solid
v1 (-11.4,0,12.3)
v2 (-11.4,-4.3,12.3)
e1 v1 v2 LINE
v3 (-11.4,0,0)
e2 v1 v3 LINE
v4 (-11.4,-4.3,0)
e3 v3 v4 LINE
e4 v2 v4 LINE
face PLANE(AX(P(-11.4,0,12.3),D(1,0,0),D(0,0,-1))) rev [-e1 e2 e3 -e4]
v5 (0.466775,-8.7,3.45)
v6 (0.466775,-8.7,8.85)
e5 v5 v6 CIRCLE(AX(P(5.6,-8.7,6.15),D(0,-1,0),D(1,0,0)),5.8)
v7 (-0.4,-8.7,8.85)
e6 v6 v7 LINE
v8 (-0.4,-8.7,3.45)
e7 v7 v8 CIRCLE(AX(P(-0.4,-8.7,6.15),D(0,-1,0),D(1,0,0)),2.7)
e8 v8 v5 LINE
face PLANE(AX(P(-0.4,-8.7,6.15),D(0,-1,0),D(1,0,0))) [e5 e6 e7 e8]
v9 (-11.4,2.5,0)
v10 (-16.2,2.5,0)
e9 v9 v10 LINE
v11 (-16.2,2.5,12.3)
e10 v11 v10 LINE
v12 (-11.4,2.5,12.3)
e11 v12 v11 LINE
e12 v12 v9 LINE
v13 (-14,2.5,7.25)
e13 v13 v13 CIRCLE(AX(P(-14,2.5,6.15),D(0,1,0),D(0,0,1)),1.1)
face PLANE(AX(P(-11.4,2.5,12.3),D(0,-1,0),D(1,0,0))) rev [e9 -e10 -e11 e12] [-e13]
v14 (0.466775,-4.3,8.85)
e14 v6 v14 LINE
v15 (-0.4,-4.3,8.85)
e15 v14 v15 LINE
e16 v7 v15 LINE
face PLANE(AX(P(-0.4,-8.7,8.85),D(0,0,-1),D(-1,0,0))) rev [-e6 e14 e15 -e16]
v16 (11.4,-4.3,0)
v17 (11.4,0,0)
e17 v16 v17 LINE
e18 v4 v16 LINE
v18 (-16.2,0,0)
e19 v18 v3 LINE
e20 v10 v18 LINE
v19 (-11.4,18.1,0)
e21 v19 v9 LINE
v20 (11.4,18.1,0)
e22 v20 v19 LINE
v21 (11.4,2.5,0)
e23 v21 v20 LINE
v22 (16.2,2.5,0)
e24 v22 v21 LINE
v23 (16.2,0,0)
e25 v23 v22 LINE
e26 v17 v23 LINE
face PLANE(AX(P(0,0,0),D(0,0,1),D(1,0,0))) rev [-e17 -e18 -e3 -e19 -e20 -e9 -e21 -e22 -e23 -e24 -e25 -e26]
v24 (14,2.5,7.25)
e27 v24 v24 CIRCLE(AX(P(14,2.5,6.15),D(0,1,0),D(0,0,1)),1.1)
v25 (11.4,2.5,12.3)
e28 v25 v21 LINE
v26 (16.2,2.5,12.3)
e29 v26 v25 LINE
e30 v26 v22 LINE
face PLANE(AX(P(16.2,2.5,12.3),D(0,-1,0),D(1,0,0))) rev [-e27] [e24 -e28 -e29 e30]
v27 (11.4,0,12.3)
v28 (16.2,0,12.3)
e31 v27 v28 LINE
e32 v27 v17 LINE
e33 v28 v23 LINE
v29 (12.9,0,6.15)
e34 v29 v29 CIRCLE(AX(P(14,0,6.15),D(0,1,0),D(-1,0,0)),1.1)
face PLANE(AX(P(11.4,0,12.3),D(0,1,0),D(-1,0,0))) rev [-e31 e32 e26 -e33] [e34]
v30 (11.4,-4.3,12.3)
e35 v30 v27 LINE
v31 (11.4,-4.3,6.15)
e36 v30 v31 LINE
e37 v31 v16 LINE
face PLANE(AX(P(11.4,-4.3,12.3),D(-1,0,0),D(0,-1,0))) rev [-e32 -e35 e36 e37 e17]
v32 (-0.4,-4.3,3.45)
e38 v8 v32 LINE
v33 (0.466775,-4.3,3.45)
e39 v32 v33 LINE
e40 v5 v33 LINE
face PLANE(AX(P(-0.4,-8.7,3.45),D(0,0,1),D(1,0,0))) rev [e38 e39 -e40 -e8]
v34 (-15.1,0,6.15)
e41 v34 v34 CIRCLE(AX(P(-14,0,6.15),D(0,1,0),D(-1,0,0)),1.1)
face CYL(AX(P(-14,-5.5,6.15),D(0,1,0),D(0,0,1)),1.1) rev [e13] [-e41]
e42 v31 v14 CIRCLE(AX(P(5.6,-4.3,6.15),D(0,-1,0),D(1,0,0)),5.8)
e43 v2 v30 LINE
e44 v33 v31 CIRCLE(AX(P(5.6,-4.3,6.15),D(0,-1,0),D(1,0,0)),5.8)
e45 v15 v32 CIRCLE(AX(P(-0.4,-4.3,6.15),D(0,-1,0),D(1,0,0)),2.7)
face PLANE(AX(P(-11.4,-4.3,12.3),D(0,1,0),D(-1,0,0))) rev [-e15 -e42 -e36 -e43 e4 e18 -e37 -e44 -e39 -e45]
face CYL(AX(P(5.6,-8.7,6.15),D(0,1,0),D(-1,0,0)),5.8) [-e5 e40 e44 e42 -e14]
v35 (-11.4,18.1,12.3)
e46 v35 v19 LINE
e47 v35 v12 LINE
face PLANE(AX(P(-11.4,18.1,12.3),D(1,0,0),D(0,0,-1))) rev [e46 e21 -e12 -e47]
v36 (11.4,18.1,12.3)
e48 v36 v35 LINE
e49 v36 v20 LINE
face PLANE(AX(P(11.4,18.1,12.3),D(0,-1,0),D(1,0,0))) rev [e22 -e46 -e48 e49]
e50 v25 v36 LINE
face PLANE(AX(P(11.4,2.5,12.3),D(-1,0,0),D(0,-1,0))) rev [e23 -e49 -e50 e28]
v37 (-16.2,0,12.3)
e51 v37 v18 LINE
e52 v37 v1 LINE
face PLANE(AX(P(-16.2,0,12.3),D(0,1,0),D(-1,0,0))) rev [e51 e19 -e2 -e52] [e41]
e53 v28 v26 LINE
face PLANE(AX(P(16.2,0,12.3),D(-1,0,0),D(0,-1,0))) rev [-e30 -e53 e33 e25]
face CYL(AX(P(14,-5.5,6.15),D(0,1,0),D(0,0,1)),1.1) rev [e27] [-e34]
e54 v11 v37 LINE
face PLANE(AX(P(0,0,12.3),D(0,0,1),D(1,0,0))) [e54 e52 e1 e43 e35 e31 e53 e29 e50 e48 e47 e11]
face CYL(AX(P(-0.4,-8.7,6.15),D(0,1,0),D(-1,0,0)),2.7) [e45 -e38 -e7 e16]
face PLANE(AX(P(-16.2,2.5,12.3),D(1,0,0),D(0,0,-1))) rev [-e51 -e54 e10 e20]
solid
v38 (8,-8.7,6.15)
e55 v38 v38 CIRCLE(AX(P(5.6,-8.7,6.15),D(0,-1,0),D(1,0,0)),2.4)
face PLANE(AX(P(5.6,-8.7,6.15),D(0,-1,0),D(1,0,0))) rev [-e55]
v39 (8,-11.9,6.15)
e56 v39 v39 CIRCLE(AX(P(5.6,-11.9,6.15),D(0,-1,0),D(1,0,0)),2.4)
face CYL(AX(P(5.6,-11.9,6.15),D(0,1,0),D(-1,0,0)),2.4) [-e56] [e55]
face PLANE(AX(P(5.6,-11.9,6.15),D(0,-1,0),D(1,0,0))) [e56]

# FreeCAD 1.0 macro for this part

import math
import FreeCAD as App
import Part
import Sketcher


def add_polygon(sketch, points):
    """Adds a closed chain of lines whose ends are joined by coincident constraints."""
    first, n = sketch.GeometryCount, len(points)
    for a, b in zip(points, points[1:] + points[:1]):
        sketch.addGeometry(Part.LineSegment(App.Vector(*a, 0), App.Vector(*b, 0)), False)
    for i in range(n):
        sketch.addConstraint(Sketcher.Constraint("Coincident", first + i, 2, first + (i + 1) % n, 1))

doc = App.newDocument("Part")
body = doc.addObject("PartDesign::Body", "Body")

# Sketch on XY plane
sketch1 = doc.addObject("Sketcher::SketchObject", "Sketch")
body.addObject(sketch1)
sketch1.AttachmentSupport = (doc.XY_Plane, [""])
sketch1.MapMode = "FlatFace"
add_polygon(sketch1, [(-16.2, 0), (-11.4, 0), (-11.4, -4.3), (11.4, -4.3), (11.4, 0), (16.2, 0), (16.2, 2.5), (11.4, 2.5), (11.4, 18.1), (-11.4, 18.1), (-11.4, 2.5), (-16.2, 2.5)])  # lines 0-11
sketch1.addConstraint([
    Sketcher.Constraint("Horizontal", 0),
    Sketcher.Constraint("Vertical", 1),
    Sketcher.Constraint("Horizontal", 2),
    Sketcher.Constraint("Vertical", 3),
    Sketcher.Constraint("Horizontal", 4),
    Sketcher.Constraint("Vertical", 5),
    Sketcher.Constraint("Horizontal", 6),
    Sketcher.Constraint("Vertical", 7),
    Sketcher.Constraint("Horizontal", 8),
    Sketcher.Constraint("Vertical", 9),
    Sketcher.Constraint("Horizontal", 10),
    Sketcher.Constraint("Vertical", 11),
    Sketcher.Constraint("Symmetric", 0, 2, 3, 2, -1, 1),
    Sketcher.Constraint("Symmetric", 6, 2, 9, 2, -2),
    Sketcher.Constraint("Symmetric", 4, 2, 11, 2, -2),
    Sketcher.Constraint("Vertical", 3, 2, 6, 2),
    Sketcher.Constraint("DistanceX", 0, 1, 0, 2, 4.8),
    Sketcher.Constraint("DistanceX", 2, 1, 2, 2, 22.8),
    Sketcher.Constraint("DistanceY", 1, 2, 1, 1, 4.3),
    Sketcher.Constraint("DistanceY", 5, 1, 5, 2, 2.5),
    Sketcher.Constraint("DistanceY", 7, 1, 7, 2, 15.6),
])
pad1 = doc.addObject("PartDesign::Pad", "Pad")
body.addObject(pad1)
pad1.Profile = sketch1
pad1.Length = 12.3

# Sketch on XZ plane
sketch2 = doc.addObject("Sketcher::SketchObject", "Sketch001")
body.addObject(sketch2)
sketch2.AttachmentSupport = (doc.XZ_Plane, [""])
sketch2.MapMode = "FlatFace"
sketch2.AttachmentOffset = App.Placement(App.Vector(0, 0, 4.3), App.Rotation())
sketch2.addGeometry([
    Part.LineSegment(App.Vector(0.5, 8.8, 0), App.Vector(-0.4, 8.8, 0)),
    Part.ArcOfCircle(Part.Circle(App.Vector(-0.4, 6.2, 0), App.Vector(0, 0, 1), 2.7), math.radians(90), math.radians(270)),
    Part.LineSegment(App.Vector(-0.4, 3.5, 0), App.Vector(0.5, 3.5, 0)),
    Part.ArcOfCircle(Part.Circle(App.Vector(5.6, 6.2, 0), App.Vector(0, 0, 1), 5.8), math.radians(-152), math.radians(152)),
], False)
sketch2.addConstraint([
    Sketcher.Constraint("Tangent", 0, 2, 1, 1),
    Sketcher.Constraint("Tangent", 1, 2, 2, 1),
    Sketcher.Constraint("Coincident", 2, 2, 3, 1),
    Sketcher.Constraint("Coincident", 3, 2, 0, 1),
    Sketcher.Constraint("Horizontal", 0),
    Sketcher.Constraint("Horizontal", 2),
    Sketcher.Constraint("Horizontal", 1, 3, 3, 3),
    Sketcher.Constraint("Radius", 1, 2.7),
    Sketcher.Constraint("Radius", 3, 5.8),
    Sketcher.Constraint("DistanceX", 1, 3, 3, 3, 6.0),
    Sketcher.Constraint("DistanceX", 1, 3, -1, 1, 0.4),
    Sketcher.Constraint("DistanceY", -1, 1, 1, 3, 6.15),
])
pad2 = doc.addObject("PartDesign::Pad", "Pad001")
body.addObject(pad2)
pad2.Profile = sketch2
pad2.Length = 4.4

# Sketch on XZ plane
sketch3 = doc.addObject("Sketcher::SketchObject", "Sketch002")
body.addObject(sketch3)
sketch3.AttachmentSupport = (doc.XZ_Plane, [""])
sketch3.MapMode = "FlatFace"
sketch3.AttachmentOffset = App.Placement(App.Vector(0, 0, -2.5), App.Rotation())
sketch3.addGeometry([
    Part.Circle(App.Vector(-14, 6.2, 0), App.Vector(0, 0, 1), 1.1),
    Part.Circle(App.Vector(14, 6.2, 0), App.Vector(0, 0, 1), 1.1),
], False)
sketch3.addConstraint([
    Sketcher.Constraint("Equal", 0, 1),
    Sketcher.Constraint("Symmetric", 0, 3, 1, 3, -2),
    Sketcher.Constraint("Diameter", 0, 2.2),
    Sketcher.Constraint("DistanceX", 0, 3, -1, 1, 14.0),
    Sketcher.Constraint("DistanceY", -1, 1, 0, 3, 6.15),
])
pocket1 = doc.addObject("PartDesign::Pocket", "Pocket")
body.addObject(pocket1)
pocket1.Profile = sketch3
pocket1.Length = 8
pocket1.Reversed = True
body2 = doc.addObject("PartDesign::Body", "Body001")

# Sketch on XZ plane
sketch4 = doc.addObject("Sketcher::SketchObject", "Sketch003")
body2.addObject(sketch4)
sketch4.AttachmentSupport = (doc.getObject("XZ_Plane001"), [""])
sketch4.MapMode = "FlatFace"
sketch4.AttachmentOffset = App.Placement(App.Vector(0, 0, 8.7), App.Rotation())
sketch4.addGeometry(Part.Circle(App.Vector(5.6, 6.2, 0), App.Vector(0, 0, 1), 2.4), False)
sketch4.addConstraint([
    Sketcher.Constraint("Diameter", 0, 4.8),
    Sketcher.Constraint("DistanceX", -1, 1, 0, 3, 5.6),
    Sketcher.Constraint("DistanceY", -1, 1, 0, 3, 6.15),
])
pad3 = doc.addObject("PartDesign::Pad", "Pad002")
body2.addObject(pad3)
pad3.Profile = sketch4
pad3.Length = 3.2

doc.recompute()
